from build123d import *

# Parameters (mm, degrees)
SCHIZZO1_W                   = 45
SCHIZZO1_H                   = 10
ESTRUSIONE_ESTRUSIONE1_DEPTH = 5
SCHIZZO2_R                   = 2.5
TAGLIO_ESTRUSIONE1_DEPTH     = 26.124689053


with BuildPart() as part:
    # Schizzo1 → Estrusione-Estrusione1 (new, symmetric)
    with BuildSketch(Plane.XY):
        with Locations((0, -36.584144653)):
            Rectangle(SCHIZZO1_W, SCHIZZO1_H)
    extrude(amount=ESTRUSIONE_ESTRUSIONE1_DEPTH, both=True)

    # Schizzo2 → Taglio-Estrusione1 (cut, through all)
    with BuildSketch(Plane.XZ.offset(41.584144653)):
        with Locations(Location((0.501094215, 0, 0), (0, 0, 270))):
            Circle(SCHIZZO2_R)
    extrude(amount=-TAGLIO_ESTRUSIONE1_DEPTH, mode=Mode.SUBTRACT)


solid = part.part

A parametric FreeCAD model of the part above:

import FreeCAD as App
import Part
import Sketcher
Q = App.Units.Quantity

doc = App.newDocument("Part")
body = doc.addObject("PartDesign::Body", "Body")

sketch1 = doc.addObject("Sketcher::SketchObject", "Sketch")
body.addObject(sketch1)
sketch1.AttachmentSupport = (doc.XY_Plane, [""])
sketch1.MapMode = "FlatFace"
sketch1.addGeometry([
    Part.LineSegment(App.Vector(-22.5, -31.584145, 0), App.Vector(-22.5, -41.584145, 0)),
    Part.LineSegment(App.Vector(-22.5, -41.584145, 0), App.Vector(22.5, -41.584145, 0)),
    Part.LineSegment(App.Vector(22.5, -41.584145, 0), App.Vector(22.5, -31.584145, 0)),
    Part.LineSegment(App.Vector(22.5, -31.584145, 0), App.Vector(-22.5, -31.584145, 0)),
], False)
sketch1.addConstraint([
    Sketcher.Constraint("Coincident", 0, 2, 1, 1),
    Sketcher.Constraint("Coincident", 1, 2, 2, 1),
    Sketcher.Constraint("Coincident", 2, 2, 3, 1),
    Sketcher.Constraint("Coincident", 3, 2, 0, 1),
    Sketcher.Constraint("Vertical", 0),
    Sketcher.Constraint("Horizontal", 1),
    Sketcher.Constraint("Vertical", 2),
    Sketcher.Constraint("Horizontal", 3),
    Sketcher.Constraint("DistanceX", 1, 1, 1, 2, Q("45 mm")),
    Sketcher.Constraint("DistanceY", 0, 2, 0, 1, Q("10 mm")),
    Sketcher.Constraint("DistanceX", 0, 2, -1, 1, Q("22.5 mm")),
    Sketcher.Constraint("DistanceY", 0, 2, -1, 1, Q("41.584145 mm")),
])
pad1 = doc.addObject("PartDesign::Pad", "Pad")
body.addObject(pad1)
pad1.Profile = sketch1
pad1.Length = 10
pad1.Midplane = True

sketch2 = doc.addObject("Sketcher::SketchObject", "Sketch001")
body.addObject(sketch2)
sketch2.AttachmentSupport = (doc.XZ_Plane, [""])
sketch2.MapMode = "FlatFace"
sketch2.AttachmentOffset = App.Placement(App.Vector(0, 0, 41.584145), App.Rotation())
sketch2.addGeometry(Part.Circle(App.Vector(0.501094, 0, 0), App.Vector(0, 0, 1), 2.5), False)
sketch2.addConstraint([
    Sketcher.Constraint("PointOnObject", 0, 3, -1),
    Sketcher.Constraint("Diameter", 0, Q("5 mm")),
    Sketcher.Constraint("DistanceX", -1, 1, 0, 3, Q("0.501094 mm")),
])
pocket1 = doc.addObject("PartDesign::Pocket", "Pocket")
body.addObject(pocket1)
pocket1.Profile = sketch2
pocket1.Type = "ThroughAll"

doc.recompute()
